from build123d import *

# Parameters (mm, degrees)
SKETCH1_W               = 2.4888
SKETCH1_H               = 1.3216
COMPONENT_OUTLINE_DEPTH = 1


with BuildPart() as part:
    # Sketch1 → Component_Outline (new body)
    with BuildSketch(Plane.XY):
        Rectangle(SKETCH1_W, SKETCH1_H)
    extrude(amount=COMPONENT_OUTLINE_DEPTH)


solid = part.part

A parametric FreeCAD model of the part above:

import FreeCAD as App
import Part
import Sketcher
from FreeCAD import Vector


def add_polygon(sketch, points):
    """Adds a closed chain of lines whose ends are joined by coincident constraints."""
    first, n = sketch.GeometryCount, len(points)
    for a, b in zip(points, points[1:] + points[:1]):
        sketch.addGeometry(Part.LineSegment(App.Vector(*a, 0), App.Vector(*b, 0)), False)
    for i in range(n):
        sketch.addConstraint(Sketcher.Constraint("Coincident", first + i, 2, first + (i + 1) % n, 1))

doc = App.newDocument("Part")
body = doc.addObject("PartDesign::Body", "Body")

sketch1 = body.newObject("Sketcher::SketchObject", "Sketch")
sketch1.AttachmentSupport = (doc.getObject("XY_Plane"), [""])
sketch1.MapMode = "FlatFace"
add_polygon(sketch1, [(-1.2444, 0.6608), (-1.2444, -0.6608), (1.2444, -0.6608), (1.2444, 0.6608)])
sketch1.addConstraint(Sketcher.Constraint("Vertical", 0))
sketch1.addConstraint(Sketcher.Constraint("Horizontal", 1))
sketch1.addConstraint(Sketcher.Constraint("Vertical", 2))
sketch1.addConstraint(Sketcher.Constraint("Horizontal", 3))
sketch1.addConstraint(Sketcher.Constraint("Symmetric", 0, 2, 2, 2, -1, 1))
sketch1.addConstraint(Sketcher.Constraint("DistanceX", 1, 1, 1, 2, 2.4888))
sketch1.addConstraint(Sketcher.Constraint("DistanceY", 0, 2, 0, 1, 1.3216))
pad1 = body.newObject("PartDesign::Pad", "Pad")
pad1.Profile = sketch1
pad1.Length = 1

doc.recompute()
